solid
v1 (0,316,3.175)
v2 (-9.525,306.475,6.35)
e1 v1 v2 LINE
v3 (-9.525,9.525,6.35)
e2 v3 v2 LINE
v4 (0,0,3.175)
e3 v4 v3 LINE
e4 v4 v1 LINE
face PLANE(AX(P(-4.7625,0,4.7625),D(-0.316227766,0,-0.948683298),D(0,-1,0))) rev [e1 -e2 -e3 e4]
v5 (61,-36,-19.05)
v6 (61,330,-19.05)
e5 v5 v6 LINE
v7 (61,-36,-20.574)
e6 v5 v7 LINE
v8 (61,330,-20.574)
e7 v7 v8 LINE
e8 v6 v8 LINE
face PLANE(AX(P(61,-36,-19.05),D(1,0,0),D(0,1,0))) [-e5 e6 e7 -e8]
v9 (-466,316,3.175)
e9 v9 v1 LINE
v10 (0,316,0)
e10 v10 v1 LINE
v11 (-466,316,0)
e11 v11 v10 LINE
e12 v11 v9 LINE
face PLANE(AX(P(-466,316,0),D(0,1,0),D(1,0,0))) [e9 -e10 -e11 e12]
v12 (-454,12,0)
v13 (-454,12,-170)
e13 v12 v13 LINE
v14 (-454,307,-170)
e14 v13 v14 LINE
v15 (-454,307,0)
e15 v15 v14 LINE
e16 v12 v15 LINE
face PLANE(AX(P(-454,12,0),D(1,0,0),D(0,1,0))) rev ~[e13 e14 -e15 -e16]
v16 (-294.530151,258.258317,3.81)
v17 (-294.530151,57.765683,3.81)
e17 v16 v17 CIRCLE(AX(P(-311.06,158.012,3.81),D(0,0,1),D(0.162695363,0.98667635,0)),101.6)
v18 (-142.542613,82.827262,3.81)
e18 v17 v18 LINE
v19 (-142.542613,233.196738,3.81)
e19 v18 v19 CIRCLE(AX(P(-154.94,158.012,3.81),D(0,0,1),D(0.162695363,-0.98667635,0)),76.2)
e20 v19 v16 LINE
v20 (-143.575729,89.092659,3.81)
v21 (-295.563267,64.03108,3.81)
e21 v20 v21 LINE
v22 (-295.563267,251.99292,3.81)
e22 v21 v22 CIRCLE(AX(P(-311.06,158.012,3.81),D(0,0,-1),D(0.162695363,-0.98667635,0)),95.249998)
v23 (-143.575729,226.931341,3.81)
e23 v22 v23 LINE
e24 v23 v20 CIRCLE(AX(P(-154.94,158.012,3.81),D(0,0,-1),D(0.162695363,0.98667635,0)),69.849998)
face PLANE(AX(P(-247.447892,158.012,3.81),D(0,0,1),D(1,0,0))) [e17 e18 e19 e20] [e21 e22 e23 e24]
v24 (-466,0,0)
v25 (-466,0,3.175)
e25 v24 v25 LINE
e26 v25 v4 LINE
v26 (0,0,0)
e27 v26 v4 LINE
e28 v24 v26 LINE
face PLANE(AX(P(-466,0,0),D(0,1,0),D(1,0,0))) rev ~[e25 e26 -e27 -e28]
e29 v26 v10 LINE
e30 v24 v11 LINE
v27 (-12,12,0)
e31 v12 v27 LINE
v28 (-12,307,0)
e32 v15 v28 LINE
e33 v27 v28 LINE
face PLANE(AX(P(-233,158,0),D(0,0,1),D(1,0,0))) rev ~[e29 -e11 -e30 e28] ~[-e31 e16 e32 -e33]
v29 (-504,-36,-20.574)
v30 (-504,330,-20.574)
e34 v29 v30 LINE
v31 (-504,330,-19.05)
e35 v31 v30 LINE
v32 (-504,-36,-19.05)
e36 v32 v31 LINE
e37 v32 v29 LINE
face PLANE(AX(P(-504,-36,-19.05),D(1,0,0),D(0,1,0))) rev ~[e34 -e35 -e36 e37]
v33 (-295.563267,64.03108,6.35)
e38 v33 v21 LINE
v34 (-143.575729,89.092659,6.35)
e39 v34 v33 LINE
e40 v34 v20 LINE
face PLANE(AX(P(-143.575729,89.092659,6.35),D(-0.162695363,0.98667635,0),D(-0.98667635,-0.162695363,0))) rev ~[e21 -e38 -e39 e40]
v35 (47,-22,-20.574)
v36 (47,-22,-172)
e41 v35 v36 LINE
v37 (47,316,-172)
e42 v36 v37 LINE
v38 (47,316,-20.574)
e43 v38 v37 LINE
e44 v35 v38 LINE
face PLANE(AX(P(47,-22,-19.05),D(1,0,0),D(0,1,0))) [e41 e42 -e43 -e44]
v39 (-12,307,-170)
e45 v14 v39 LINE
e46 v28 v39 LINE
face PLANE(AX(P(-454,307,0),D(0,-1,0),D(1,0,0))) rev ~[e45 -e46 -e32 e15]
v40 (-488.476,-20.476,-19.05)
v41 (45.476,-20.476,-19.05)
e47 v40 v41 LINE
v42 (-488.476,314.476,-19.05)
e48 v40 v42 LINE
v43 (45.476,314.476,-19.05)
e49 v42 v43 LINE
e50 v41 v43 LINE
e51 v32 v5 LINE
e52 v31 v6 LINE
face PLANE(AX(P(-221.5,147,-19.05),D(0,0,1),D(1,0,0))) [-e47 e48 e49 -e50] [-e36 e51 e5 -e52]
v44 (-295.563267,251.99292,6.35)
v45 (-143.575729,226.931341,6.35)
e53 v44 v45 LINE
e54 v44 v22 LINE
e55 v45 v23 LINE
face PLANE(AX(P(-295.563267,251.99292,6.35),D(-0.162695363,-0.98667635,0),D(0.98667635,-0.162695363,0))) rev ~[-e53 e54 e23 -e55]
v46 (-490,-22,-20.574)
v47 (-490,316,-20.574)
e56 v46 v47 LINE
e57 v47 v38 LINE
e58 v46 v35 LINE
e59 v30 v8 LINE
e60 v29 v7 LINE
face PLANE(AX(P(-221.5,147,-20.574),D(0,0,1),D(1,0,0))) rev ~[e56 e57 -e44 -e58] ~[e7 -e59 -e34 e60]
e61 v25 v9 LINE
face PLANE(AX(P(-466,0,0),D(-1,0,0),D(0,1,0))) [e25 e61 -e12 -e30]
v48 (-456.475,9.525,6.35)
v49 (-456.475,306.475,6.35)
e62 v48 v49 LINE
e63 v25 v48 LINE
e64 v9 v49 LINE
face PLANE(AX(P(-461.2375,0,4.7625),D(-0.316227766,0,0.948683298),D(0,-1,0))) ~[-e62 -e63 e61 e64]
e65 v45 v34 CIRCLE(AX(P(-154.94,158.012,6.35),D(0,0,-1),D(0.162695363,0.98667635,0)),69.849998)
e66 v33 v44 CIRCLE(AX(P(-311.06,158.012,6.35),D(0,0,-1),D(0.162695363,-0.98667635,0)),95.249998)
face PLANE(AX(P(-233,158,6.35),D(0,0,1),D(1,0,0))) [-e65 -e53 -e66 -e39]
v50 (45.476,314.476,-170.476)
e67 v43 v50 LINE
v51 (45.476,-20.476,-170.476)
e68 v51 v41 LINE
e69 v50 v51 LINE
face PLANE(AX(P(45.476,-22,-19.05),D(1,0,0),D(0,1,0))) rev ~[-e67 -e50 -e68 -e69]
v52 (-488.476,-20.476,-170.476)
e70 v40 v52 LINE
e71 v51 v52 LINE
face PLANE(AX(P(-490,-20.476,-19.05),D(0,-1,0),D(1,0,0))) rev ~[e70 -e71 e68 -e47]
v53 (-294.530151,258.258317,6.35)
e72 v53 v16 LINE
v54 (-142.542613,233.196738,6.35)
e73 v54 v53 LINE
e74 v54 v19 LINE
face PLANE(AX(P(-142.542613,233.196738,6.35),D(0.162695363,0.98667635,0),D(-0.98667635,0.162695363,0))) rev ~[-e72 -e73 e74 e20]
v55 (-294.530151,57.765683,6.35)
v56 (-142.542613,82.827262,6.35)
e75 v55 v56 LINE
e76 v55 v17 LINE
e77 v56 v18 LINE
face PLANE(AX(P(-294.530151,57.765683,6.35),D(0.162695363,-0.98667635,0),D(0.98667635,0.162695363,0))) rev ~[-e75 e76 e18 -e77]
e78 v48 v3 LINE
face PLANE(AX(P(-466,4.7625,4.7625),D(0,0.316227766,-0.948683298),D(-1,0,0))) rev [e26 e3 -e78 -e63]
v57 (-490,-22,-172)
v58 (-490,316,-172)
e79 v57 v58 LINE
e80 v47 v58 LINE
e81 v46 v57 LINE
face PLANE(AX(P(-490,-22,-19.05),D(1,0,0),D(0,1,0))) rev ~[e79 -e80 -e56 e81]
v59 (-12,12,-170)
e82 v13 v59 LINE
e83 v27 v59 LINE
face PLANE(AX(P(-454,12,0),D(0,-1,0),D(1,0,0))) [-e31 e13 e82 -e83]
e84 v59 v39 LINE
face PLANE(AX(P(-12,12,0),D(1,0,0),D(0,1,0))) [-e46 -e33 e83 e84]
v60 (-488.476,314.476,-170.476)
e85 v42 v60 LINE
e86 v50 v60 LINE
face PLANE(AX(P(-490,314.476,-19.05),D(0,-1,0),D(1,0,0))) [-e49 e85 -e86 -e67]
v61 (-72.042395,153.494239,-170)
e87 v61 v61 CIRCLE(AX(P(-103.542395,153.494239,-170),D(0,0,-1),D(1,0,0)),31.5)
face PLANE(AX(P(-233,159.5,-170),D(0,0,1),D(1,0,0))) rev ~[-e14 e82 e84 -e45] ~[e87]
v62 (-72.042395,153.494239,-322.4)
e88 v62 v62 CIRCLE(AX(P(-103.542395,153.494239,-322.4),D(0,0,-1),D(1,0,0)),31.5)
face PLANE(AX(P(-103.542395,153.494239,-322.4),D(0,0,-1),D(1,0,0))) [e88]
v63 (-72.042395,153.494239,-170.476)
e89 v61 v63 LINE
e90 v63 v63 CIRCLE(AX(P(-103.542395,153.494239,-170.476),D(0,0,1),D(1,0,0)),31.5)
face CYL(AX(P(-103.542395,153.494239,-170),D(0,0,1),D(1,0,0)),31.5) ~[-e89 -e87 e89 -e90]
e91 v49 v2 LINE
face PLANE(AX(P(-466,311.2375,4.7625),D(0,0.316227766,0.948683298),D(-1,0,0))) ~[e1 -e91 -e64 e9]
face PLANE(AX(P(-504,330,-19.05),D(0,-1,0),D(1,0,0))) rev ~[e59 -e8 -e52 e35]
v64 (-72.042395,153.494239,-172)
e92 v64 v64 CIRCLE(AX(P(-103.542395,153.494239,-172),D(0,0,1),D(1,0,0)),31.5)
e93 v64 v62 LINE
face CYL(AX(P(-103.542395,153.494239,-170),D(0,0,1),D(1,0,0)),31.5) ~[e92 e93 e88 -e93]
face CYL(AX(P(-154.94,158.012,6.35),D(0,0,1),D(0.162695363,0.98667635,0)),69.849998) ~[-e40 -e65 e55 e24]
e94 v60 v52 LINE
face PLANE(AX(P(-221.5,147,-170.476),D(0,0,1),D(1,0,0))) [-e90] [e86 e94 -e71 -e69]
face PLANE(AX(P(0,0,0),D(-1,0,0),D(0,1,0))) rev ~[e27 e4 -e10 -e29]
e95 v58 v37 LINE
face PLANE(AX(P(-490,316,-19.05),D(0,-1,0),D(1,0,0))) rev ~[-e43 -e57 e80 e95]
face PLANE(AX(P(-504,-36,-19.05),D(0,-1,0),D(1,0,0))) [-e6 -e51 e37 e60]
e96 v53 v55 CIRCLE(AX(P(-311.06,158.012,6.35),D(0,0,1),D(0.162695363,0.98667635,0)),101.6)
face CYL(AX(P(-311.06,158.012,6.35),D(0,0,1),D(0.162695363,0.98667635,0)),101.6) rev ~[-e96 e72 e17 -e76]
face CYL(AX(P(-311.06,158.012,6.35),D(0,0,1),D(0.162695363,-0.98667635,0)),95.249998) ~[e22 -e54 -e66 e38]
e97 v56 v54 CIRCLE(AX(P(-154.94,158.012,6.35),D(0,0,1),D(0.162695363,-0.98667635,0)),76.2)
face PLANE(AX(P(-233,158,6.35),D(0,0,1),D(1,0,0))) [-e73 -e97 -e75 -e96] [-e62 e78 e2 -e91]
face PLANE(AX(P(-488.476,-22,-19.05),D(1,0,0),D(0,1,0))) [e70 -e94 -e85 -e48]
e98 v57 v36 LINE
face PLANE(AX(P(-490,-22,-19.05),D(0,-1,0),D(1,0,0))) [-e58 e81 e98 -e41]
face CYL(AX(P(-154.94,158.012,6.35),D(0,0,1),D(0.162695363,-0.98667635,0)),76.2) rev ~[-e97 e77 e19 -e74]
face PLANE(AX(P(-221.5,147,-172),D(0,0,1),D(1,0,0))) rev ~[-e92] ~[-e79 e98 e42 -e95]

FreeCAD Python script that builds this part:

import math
import FreeCAD as App
import Part
import Sketcher
from FreeCAD import Vector
Q = App.Units.Quantity


def edges_at(feature, points):
    """Names of the edges that pass closest to the given points."""
    edges = feature.Shape.Edges
    near = lambda p: min(range(len(edges)), key=lambda i: edges[i].distToShape(Part.Vertex(*p))[0])
    return sorted({f"Edge{near(p) + 1}" for p in points})


def faces_at(feature, points):
    """Names of the faces that lie closest to the given points."""
    faces = feature.Shape.Faces
    near = lambda p: min(range(len(faces)), key=lambda i: faces[i].distToShape(Part.Vertex(*p))[0])
    return sorted({f"Face{near(p) + 1}" for p in points})

doc = App.newDocument("Part")
body = doc.addObject("PartDesign::Body", "Body")

# Sketch on XY plane
sketch1 = body.newObject("Sketcher::SketchObject", "Sketch")
sketch1.AttachmentSupport = (doc.getObject("XY_Plane"), [""])
sketch1.MapMode = "FlatFace"
sketch1.addGeometry([
    Part.LineSegment(Vector(-466, 316, 0), Vector(-466, 0, 0)),
    Part.LineSegment(Vector(-466, 0, 0), Vector(0, 0, 0)),
    Part.LineSegment(Vector(0, 0, 0), Vector(0, 316, 0)),
    Part.LineSegment(Vector(0, 316, 0), Vector(-466, 316, 0)),
], False)
sketch1.addConstraint([
    Sketcher.Constraint("Coincident", 0, 2, 1, 1),
    Sketcher.Constraint("Coincident", 1, 2, 2, 1),
    Sketcher.Constraint("Coincident", 2, 2, 3, 1),
    Sketcher.Constraint("Coincident", 3, 2, 0, 1),
    Sketcher.Constraint("Vertical", 0),
    Sketcher.Constraint("Horizontal", 1),
    Sketcher.Constraint("Vertical", 2),
    Sketcher.Constraint("Horizontal", 3),
    Sketcher.Constraint("Coincident", 1, 2, -1, 1),
    Sketcher.Constraint("DistanceX", 1, 1, 1, 2, Q("466 mm")),
    Sketcher.Constraint("DistanceY", 0, 2, 0, 1, Q("316 mm")),
])
pad1 = body.newObject("PartDesign::Pad", "Pad")
pad1.Profile = sketch1
pad1.Length = 6.35
doc.recompute()

chamfer = body.newObject("PartDesign::Chamfer", "Chamfer")
chamfer.Base = (pad1, edges_at(pad1, [
    (-233, 0, 6.35),
    (0, 158, 6.35),
    (-233, 316, 6.35),
    (-466, 158, 6.35),
]))
chamfer.ChamferType = "Two distances"
chamfer.Size = 3.175
chamfer.Size2 = 9.525

# Sketch on XY plane
sketch2 = body.newObject("Sketcher::SketchObject", "Sketch001")
sketch2.AttachmentSupport = (doc.getObject("XY_Plane"), [""])
sketch2.MapMode = "FlatFace"
sketch2.AttachmentOffset = App.Placement(Vector(0, 0, 6.35), App.Rotation())
sketch2.addGeometry([
    Part.LineSegment(Vector(-143, 233, 0), Vector(-295, 258, 0)),  # 0
    Part.ArcOfCircle(Part.Circle(Vector(-311, 158, 0), Vector(0, 0, 1), 102), math.radians(81), math.radians(279)),  # 1
    Part.LineSegment(Vector(-295, 58, 0), Vector(-143, 83, 0)),  # 2
    Part.ArcOfCircle(Part.Circle(Vector(-155, 158, 0), Vector(0, 0, 1), 76), math.radians(-81), math.radians(81)),  # 3
    Part.ArcOfCircle(Part.Circle(Vector(-155, 158, 0), Vector(0, 0, 1), 70), math.radians(-81), math.radians(81)),  # 4
    Part.LineSegment(Vector(-144, 89, 0), Vector(-296, 64, 0)),  # 5
    Part.ArcOfCircle(Part.Circle(Vector(-311, 158, 0), Vector(0, 0, 1), 95), math.radians(81), math.radians(279)),  # 6
    Part.LineSegment(Vector(-296, 252, 0), Vector(-144, 227, 0)),  # 7
], False)
sketch2.addConstraint([
    Sketcher.Constraint("Tangent", 0, 2, 1, 1),
    Sketcher.Constraint("Tangent", 1, 2, 2, 1),
    Sketcher.Constraint("Tangent", 2, 2, 3, 1),
    Sketcher.Constraint("Tangent", 3, 2, 0, 1),
    Sketcher.Constraint("Tangent", 4, 1, 5, 1),
    Sketcher.Constraint("Tangent", 5, 2, 6, 2),
    Sketcher.Constraint("Tangent", 6, 1, 7, 1),
    Sketcher.Constraint("Tangent", 7, 2, 4, 2),
    Sketcher.Constraint("Coincident", 4, 3, 3, 3),
    Sketcher.Constraint("Coincident", 6, 3, 1, 3),
    Sketcher.Constraint("Parallel", 2, 5),
    Sketcher.Constraint("Horizontal", 1, 3, 3, 3),
    Sketcher.Constraint("Radius", 1, Q("101.6 mm")),
    Sketcher.Constraint("Radius", 3, Q("76.2 mm")),
    Sketcher.Constraint("Radius", 4, Q("69.849998 mm")),
    Sketcher.Constraint("DistanceX", 1, 3, -1, 1, Q("311.06 mm")),
    Sketcher.Constraint("DistanceX", 3, 3, -1, 1, Q("154.94 mm")),
    Sketcher.Constraint("DistanceY", -1, 1, 1, 3, Q("158.012 mm")),
])
pocket1 = body.newObject("PartDesign::Pocket", "Pocket")
pocket1.Profile = sketch2
pocket1.Length = 2.54

# Sketch on XY plane
sketch3 = body.newObject("Sketcher::SketchObject", "Sketch002")
sketch3.AttachmentSupport = (doc.getObject("XY_Plane"), [""])
sketch3.MapMode = "FlatFace"
sketch3.addGeometry([
    Part.LineSegment(Vector(-454, 307, 0), Vector(-454, 12, 0)),
    Part.LineSegment(Vector(-454, 12, 0), Vector(-12, 12, 0)),
    Part.LineSegment(Vector(-12, 12, 0), Vector(-12, 307, 0)),
    Part.LineSegment(Vector(-12, 307, 0), Vector(-454, 307, 0)),
], False)
sketch3.addConstraint([
    Sketcher.Constraint("Coincident", 0, 2, 1, 1),
    Sketcher.Constraint("Coincident", 1, 2, 2, 1),
    Sketcher.Constraint("Coincident", 2, 2, 3, 1),
    Sketcher.Constraint("Coincident", 3, 2, 0, 1),
    Sketcher.Constraint("Vertical", 0),
    Sketcher.Constraint("Horizontal", 1),
    Sketcher.Constraint("Vertical", 2),
    Sketcher.Constraint("Horizontal", 3),
    Sketcher.Constraint("DistanceX", 1, 1, 1, 2, Q("442 mm")),
    Sketcher.Constraint("DistanceY", 0, 2, 0, 1, Q("295 mm")),
    Sketcher.Constraint("DistanceX", 0, 2, -1, 1, Q("454 mm")),
    Sketcher.Constraint("DistanceY", -1, 1, 0, 2, Q("12 mm")),
])
pad2 = body.newObject("PartDesign::Pad", "Pad001")
pad2.Profile = sketch3
pad2.Length = 170
pad2.Reversed = True

# Sketch on XY plane
sketch4 = body.newObject("Sketcher::SketchObject", "Sketch003")
sketch4.AttachmentSupport = (doc.getObject("XY_Plane"), [""])
sketch4.MapMode = "FlatFace"
sketch4.AttachmentOffset = App.Placement(Vector(0, 0, -170), App.Rotation())
sketch4.addGeometry(Part.Circle(Vector(-104, 153, 0), Vector(0, 0, 1), 32), False)
sketch4.addConstraint([
    Sketcher.Constraint("Diameter", 0, Q("63 mm")),
    Sketcher.Constraint("DistanceY", -1, 1, 0, 3, Q("153.494239 mm")),
    Sketcher.Constraint("DistanceX", 0, 3, -1, 1, Q("103.542395 mm")),
])
pad3 = body.newObject("PartDesign::Pad", "Pad002")
pad3.Profile = sketch4
pad3.Length = 152.4
pad3.Reversed = True
body2 = doc.addObject("PartDesign::Body", "Body001")

# Sketch on XY plane
sketch5 = body2.newObject("Sketcher::SketchObject", "Sketch004")
sketch5.AttachmentSupport = (doc.getObject("XY_Plane001"), [""])
sketch5.MapMode = "FlatFace"
sketch5.AttachmentOffset = App.Placement(Vector(0, 0, -19.05), App.Rotation())
sketch5.addGeometry([
    Part.LineSegment(Vector(-490, 316, 0), Vector(-490, -22, 0)),
    Part.LineSegment(Vector(-490, -22, 0), Vector(47, -22, 0)),
    Part.LineSegment(Vector(47, -22, 0), Vector(47, 316, 0)),
    Part.LineSegment(Vector(47, 316, 0), Vector(-490, 316, 0)),
], False)
sketch5.addConstraint([
    Sketcher.Constraint("Coincident", 0, 2, 1, 1),
    Sketcher.Constraint("Coincident", 1, 2, 2, 1),
    Sketcher.Constraint("Coincident", 2, 2, 3, 1),
    Sketcher.Constraint("Coincident", 3, 2, 0, 1),
    Sketcher.Constraint("Vertical", 0),
    Sketcher.Constraint("Horizontal", 1),
    Sketcher.Constraint("Vertical", 2),
    Sketcher.Constraint("Horizontal", 3),
    Sketcher.Constraint("DistanceX", 1, 1, 1, 2, Q("537 mm")),
    Sketcher.Constraint("DistanceY", 0, 2, 0, 1, Q("338 mm")),
    Sketcher.Constraint("DistanceX", 0, 2, -1, 1, Q("490 mm")),
    Sketcher.Constraint("DistanceY", 0, 2, -1, 1, Q("22 mm")),
])
pad4 = body2.newObject("PartDesign::Pad", "Pad003")
pad4.Profile = sketch5
pad4.Length = 152.95
pad4.Reversed = True
doc.recompute()

thickness = body2.newObject("PartDesign::Thickness", "Thickness")
thickness.Base = (pad4, faces_at(pad4, [(-221.5, 147, -19.05)]))
thickness.Value = 1.524
thickness.Reversed = True
thickness.Join = "Arc"
doc.recompute()

boolean = body.newObject("PartDesign::Boolean", "Boolean")
boolean.Type = "Fuse"
boolean.addObjects([body2])

# Sketch on XY plane
sketch6 = body.newObject("Sketcher::SketchObject", "Sketch005")
sketch6.AttachmentSupport = (doc.getObject("XY_Plane"), [""])
sketch6.MapMode = "FlatFace"
sketch6.AttachmentOffset = App.Placement(Vector(0, 0, -19.05), App.Rotation())
sketch6.addGeometry([
    Part.LineSegment(Vector(-504, 330, 0), Vector(-504, -36, 0)),  # 0
    Part.LineSegment(Vector(-504, -36, 0), Vector(61, -36, 0)),  # 1
    Part.LineSegment(Vector(61, -36, 0), Vector(61, 330, 0)),  # 2
    Part.LineSegment(Vector(61, 330, 0), Vector(-504, 330, 0)),  # 3
    Part.LineSegment(Vector(47, -22, 0), Vector(-490, -22, 0)),  # 4
    Part.LineSegment(Vector(-490, -22, 0), Vector(-490, 316, 0)),  # 5
    Part.LineSegment(Vector(-490, 316, 0), Vector(47, 316, 0)),  # 6
    Part.LineSegment(Vector(47, 316, 0), Vector(47, -22, 0)),  # 7
], False)
sketch6.addConstraint([
    Sketcher.Constraint("Coincident", 0, 2, 1, 1),
    Sketcher.Constraint("Coincident", 1, 2, 2, 1),
    Sketcher.Constraint("Coincident", 2, 2, 3, 1),
    Sketcher.Constraint("Coincident", 3, 2, 0, 1),
    Sketcher.Constraint("Coincident", 4, 2, 5, 1),
    Sketcher.Constraint("Coincident", 5, 2, 6, 1),
    Sketcher.Constraint("Coincident", 6, 2, 7, 1),
    Sketcher.Constraint("Coincident", 7, 2, 4, 1),
    Sketcher.Constraint("Vertical", 0),
    Sketcher.Constraint("Horizontal", 1),
    Sketcher.Constraint("Vertical", 2),
    Sketcher.Constraint("Horizontal", 3),
    Sketcher.Constraint("Horizontal", 4),
    Sketcher.Constraint("Vertical", 5),
    Sketcher.Constraint("Horizontal", 6),
    Sketcher.Constraint("Vertical", 7),
    Sketcher.Constraint("DistanceX", 1, 1, 1, 2, Q("565 mm")),
    Sketcher.Constraint("DistanceX", 4, 2, 4, 1, Q("537 mm")),
    Sketcher.Constraint("DistanceY", 0, 2, 0, 1, Q("366 mm")),
    Sketcher.Constraint("DistanceY", 5, 1, 5, 2, Q("338 mm")),
    Sketcher.Constraint("DistanceX", 0, 2, -1, 1, Q("504 mm")),
    Sketcher.Constraint("DistanceY", 0, 2, -1, 1, Q("36 mm")),
    Sketcher.Constraint("DistanceX", 4, 2, -1, 1, Q("490 mm")),
    Sketcher.Constraint("DistanceY", 4, 2, -1, 1, Q("22 mm")),
])
pad5 = body.newObject("PartDesign::Pad", "Pad004")
pad5.Profile = sketch6
pad5.Length = 1.524
pad5.Reversed = True

doc.recompute()
